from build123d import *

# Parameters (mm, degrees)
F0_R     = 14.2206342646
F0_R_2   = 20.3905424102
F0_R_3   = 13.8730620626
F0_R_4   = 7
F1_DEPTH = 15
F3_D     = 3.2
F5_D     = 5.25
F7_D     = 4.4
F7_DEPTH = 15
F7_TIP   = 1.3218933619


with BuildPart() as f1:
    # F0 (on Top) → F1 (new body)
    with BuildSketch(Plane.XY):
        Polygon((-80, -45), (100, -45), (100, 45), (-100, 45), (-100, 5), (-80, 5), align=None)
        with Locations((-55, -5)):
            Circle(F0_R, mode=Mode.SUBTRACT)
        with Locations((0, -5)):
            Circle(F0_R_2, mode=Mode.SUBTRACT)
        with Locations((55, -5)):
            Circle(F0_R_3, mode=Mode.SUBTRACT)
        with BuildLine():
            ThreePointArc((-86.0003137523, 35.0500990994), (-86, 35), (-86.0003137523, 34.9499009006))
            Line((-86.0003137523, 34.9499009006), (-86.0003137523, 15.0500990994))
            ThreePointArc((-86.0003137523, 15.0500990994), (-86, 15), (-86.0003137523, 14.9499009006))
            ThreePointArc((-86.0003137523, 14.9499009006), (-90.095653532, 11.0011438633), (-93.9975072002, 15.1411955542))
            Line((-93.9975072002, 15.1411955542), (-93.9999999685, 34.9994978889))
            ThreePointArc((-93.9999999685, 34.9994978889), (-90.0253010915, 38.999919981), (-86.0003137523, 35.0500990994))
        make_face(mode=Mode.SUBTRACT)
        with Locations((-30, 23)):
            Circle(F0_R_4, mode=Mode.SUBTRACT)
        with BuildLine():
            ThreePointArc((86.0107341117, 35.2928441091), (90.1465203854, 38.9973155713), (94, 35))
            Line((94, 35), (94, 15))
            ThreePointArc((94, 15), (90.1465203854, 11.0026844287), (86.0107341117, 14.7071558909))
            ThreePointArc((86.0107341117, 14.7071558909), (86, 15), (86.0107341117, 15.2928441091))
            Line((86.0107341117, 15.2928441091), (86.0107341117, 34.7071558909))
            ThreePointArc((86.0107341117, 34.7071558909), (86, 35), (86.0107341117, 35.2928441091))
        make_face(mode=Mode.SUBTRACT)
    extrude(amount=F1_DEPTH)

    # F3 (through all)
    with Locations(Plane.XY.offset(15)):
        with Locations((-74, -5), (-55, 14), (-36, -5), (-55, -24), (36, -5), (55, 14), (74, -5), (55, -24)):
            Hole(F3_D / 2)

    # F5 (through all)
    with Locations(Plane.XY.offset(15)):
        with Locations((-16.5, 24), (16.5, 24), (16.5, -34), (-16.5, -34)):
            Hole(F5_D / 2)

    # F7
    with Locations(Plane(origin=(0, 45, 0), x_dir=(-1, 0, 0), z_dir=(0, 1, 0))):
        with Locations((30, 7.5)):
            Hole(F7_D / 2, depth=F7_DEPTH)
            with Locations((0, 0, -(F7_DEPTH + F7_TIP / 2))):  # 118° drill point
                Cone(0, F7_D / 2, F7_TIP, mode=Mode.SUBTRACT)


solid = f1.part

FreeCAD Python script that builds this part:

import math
import FreeCAD as App
import Part
import Sketcher
from FreeCAD import Vector

doc = App.newDocument("Part")
body = doc.addObject("PartDesign::Body", "Body")

# Sketch on XY plane
sketch1 = body.newObject("Sketcher::SketchObject", "Sketch")
sketch1.AttachmentSupport = (doc.getObject("XY_Plane"), [""])
sketch1.MapMode = "FlatFace"
sketch1.addGeometry(Part.LineSegment(Vector(-80, -45, 0), Vector(100, -45, 0)), False)
sketch1.addGeometry(Part.LineSegment(Vector(100, -45, 0), Vector(100, 45, 0)), False)
sketch1.addGeometry(Part.LineSegment(Vector(100, 45, 0), Vector(-100, 45, 0)), False)
sketch1.addGeometry(Part.LineSegment(Vector(-100, 45, 0), Vector(-100, 5, 0)), False)
sketch1.addGeometry(Part.LineSegment(Vector(-100, 5, 0), Vector(-80, 5, 0)), False)
sketch1.addGeometry(Part.LineSegment(Vector(-80, 5, 0), Vector(-80, -45, 0)), False)
sketch1.addGeometry(Part.Circle(Vector(-55, -5, 0), Vector(0, 0, 1), 14.22), False)
sketch1.addGeometry(Part.Circle(Vector(0, -5, 0), Vector(0, 0, 1), 20.39), False)
sketch1.addGeometry(Part.Circle(Vector(55, -5, 0), Vector(0, 0, 1), 13.87), False)
sketch1.addGeometry(Part.ArcOfCircle(Part.Circle(Vector(-90, 35, 0), Vector(0, 0, 1), 4), math.radians(1), math.radians(180)), False)
sketch1.addGeometry(Part.ArcOfCircle(Part.Circle(Vector(-90, 35, 0), Vector(0, 0, 1), 4), math.radians(-0.72), math.radians(0.72)), False)
sketch1.addGeometry(Part.LineSegment(Vector(-86, 34.95, 0), Vector(-86, 15.05, 0)), False)
sketch1.addGeometry(Part.ArcOfCircle(Part.Circle(Vector(-90, 15, 0), Vector(0, 0, 1), 4), math.radians(-0.72), math.radians(0.72)), False)
sketch1.addGeometry(Part.ArcOfCircle(Part.Circle(Vector(-90, 15, 0), Vector(0, 0, 1), 4), math.radians(178), math.radians(359)), False)
sketch1.addGeometry(Part.LineSegment(Vector(-94, 15.14, 0), Vector(-94, 35, 0)), False)
sketch1.addGeometry(Part.Circle(Vector(-30, 23, 0), Vector(0, 0, 1), 7), False)
sketch1.addGeometry(Part.ArcOfCircle(Part.Circle(Vector(90, 35, 0), Vector(0, 0, 1), 4), math.radians(175.8), math.radians(184.2)), False)
sketch1.addGeometry(Part.ArcOfCircle(Part.Circle(Vector(90, 35, 0), Vector(0, 0, 1), 4), math.radians(0), math.radians(176)), False)
sketch1.addGeometry(Part.LineSegment(Vector(94, 35, 0), Vector(94, 15, 0)), False)
sketch1.addGeometry(Part.ArcOfCircle(Part.Circle(Vector(90, 15, 0), Vector(0, 0, 1), 4), math.radians(-176), math.radians(0)), False)
sketch1.addGeometry(Part.ArcOfCircle(Part.Circle(Vector(90, 15, 0), Vector(0, 0, 1), 4), math.radians(175.8), math.radians(184.2)), False)
sketch1.addGeometry(Part.LineSegment(Vector(86.01, 15.29, 0), Vector(86.01, 34.71, 0)), False)
sketch1.addConstraint(Sketcher.Constraint("Coincident", 0, 2, 1, 1))
sketch1.addConstraint(Sketcher.Constraint("Coincident", 1, 2, 2, 1))
sketch1.addConstraint(Sketcher.Constraint("Coincident", 2, 2, 3, 1))
sketch1.addConstraint(Sketcher.Constraint("Coincident", 3, 2, 4, 1))
sketch1.addConstraint(Sketcher.Constraint("Coincident", 4, 2, 5, 1))
sketch1.addConstraint(Sketcher.Constraint("Coincident", 5, 2, 0, 1))
sketch1.addConstraint(Sketcher.Constraint("Tangent", 9, 1, 10, 2))
sketch1.addConstraint(Sketcher.Constraint("Coincident", 10, 1, 11, 1))
sketch1.addConstraint(Sketcher.Constraint("Coincident", 11, 2, 12, 2))
sketch1.addConstraint(Sketcher.Constraint("Tangent", 12, 1, 13, 2))
sketch1.addConstraint(Sketcher.Constraint("Coincident", 13, 1, 14, 1))
sketch1.addConstraint(Sketcher.Constraint("Tangent", 14, 2, 9, 2))
sketch1.addConstraint(Sketcher.Constraint("Tangent", 16, 1, 17, 2))
sketch1.addConstraint(Sketcher.Constraint("Tangent", 17, 1, 18, 1))
sketch1.addConstraint(Sketcher.Constraint("Tangent", 18, 2, 19, 2))
sketch1.addConstraint(Sketcher.Constraint("Tangent", 19, 1, 20, 2))
sketch1.addConstraint(Sketcher.Constraint("Coincident", 20, 1, 21, 1))
sketch1.addConstraint(Sketcher.Constraint("Coincident", 21, 2, 16, 2))
sketch1.addConstraint(Sketcher.Constraint("Horizontal", 0))
sketch1.addConstraint(Sketcher.Constraint("Vertical", 1))
sketch1.addConstraint(Sketcher.Constraint("Horizontal", 2))
sketch1.addConstraint(Sketcher.Constraint("Vertical", 3))
sketch1.addConstraint(Sketcher.Constraint("Horizontal", 4))
sketch1.addConstraint(Sketcher.Constraint("Vertical", 5))
sketch1.addConstraint(Sketcher.Constraint("Vertical", 11))
sketch1.addConstraint(Sketcher.Constraint("Vertical", 18))
sketch1.addConstraint(Sketcher.Constraint("Vertical", 21))
sketch1.addConstraint(Sketcher.Constraint("Equal", 9, 10))
sketch1.addConstraint(Sketcher.Constraint("Equal", 10, 12))
sketch1.addConstraint(Sketcher.Constraint("Equal", 12, 13))
sketch1.addConstraint(Sketcher.Constraint("Equal", 13, 16))
sketch1.addConstraint(Sketcher.Constraint("Equal", 16, 17))
sketch1.addConstraint(Sketcher.Constraint("Equal", 17, 19))
sketch1.addConstraint(Sketcher.Constraint("Equal", 19, 20))
sketch1.addConstraint(Sketcher.Constraint("Symmetric", 0, 2, 2, 2, -1, 1))
sketch1.addConstraint(Sketcher.Constraint("Symmetric", 6, 3, 8, 3, -2))
sketch1.addConstraint(Sketcher.Constraint("Symmetric", 9, 3, 16, 3, -2))
sketch1.addConstraint(Sketcher.Constraint("Symmetric", 12, 3, 19, 3, -2))
sketch1.addConstraint(Sketcher.Constraint("PointOnObject", 7, 3, -2))
sketch1.addConstraint(Sketcher.Constraint("Horizontal", 6, 3, 7, 3))
sketch1.addConstraint(Sketcher.Constraint("Vertical", 9, 1, 10, 1))
sketch1.addConstraint(Sketcher.Constraint("Vertical", 11, 2, 12, 1))
sketch1.addConstraint(Sketcher.Constraint("Vertical", 16, 1, 19, 1))
sketch1.addConstraint(Sketcher.Constraint("Vertical", 19, 1, 20, 1))
sketch1.addConstraint(Sketcher.Constraint("Equal", 4, 18))
sketch1.addConstraint(Sketcher.Constraint("Diameter", 15, 14.0))
sketch1.addConstraint(Sketcher.Constraint("Radius", 9, 4.0))
sketch1.addConstraint(Sketcher.Constraint("DistanceX", 0, 1, 0, 2, 180.0))
sketch1.addConstraint(Sketcher.Constraint("DistanceX", 2, 2, 2, 1, 200.0))
sketch1.addConstraint(Sketcher.Constraint("DistanceY", 1, 1, 1, 2, 90.0))
sketch1.addConstraint(Sketcher.Constraint("DistanceY", 3, 2, 3, 1, 40.0))
sketch1.addConstraint(Sketcher.Constraint("DistanceX", 6, 3, -1, 1, 55.0))
sketch1.addConstraint(Sketcher.Constraint("DistanceY", 6, 3, -1, 1, 5.0))
sketch1.addConstraint(Sketcher.Constraint("DistanceX", 9, 3, -1, 1, 90.0))
sketch1.addConstraint(Sketcher.Constraint("DistanceY", -1, 1, 9, 3, 35.0))
sketch1.addConstraint(Sketcher.Constraint("DistanceX", 15, 3, -1, 1, 30.0))
sketch1.addConstraint(Sketcher.Constraint("DistanceY", -1, 1, 15, 3, 23.0))
sketch1.addConstraint(Sketcher.Constraint("Diameter", 6, 28.441269))
sketch1.addConstraint(Sketcher.Constraint("Diameter", 7, 40.781085))
sketch1.addConstraint(Sketcher.Constraint("Diameter", 8, 27.746124))
sketch1.addConstraint(Sketcher.Constraint("DistanceY", 11, 2, 11, 1, 19.899802))
sketch1.addConstraint(Sketcher.Constraint("DistanceY", 21, 1, 21, 2, 19.414312))
sketch1.addConstraint(Sketcher.Constraint("Distance", 14, 19.858302))
pad1 = body.newObject("PartDesign::Pad", "Pad")
pad1.Profile = sketch1
pad1.Length = 15

# Sketch on XY plane
sketch2 = body.newObject("Sketcher::SketchObject", "Sketch001")
sketch2.AttachmentSupport = (doc.getObject("XY_Plane"), [""])
sketch2.MapMode = "FlatFace"
sketch2.AttachmentOffset = App.Placement(Vector(0, 0, 15), App.Rotation())
sketch2.addGeometry(Part.Circle(Vector(-74, -5, 0), Vector(0, 0, 1), 1.6), False)
sketch2.addGeometry(Part.Circle(Vector(-55, 14, 0), Vector(0, 0, 1), 1.6), False)
sketch2.addGeometry(Part.Circle(Vector(-36, -5, 0), Vector(0, 0, 1), 1.6), False)
sketch2.addGeometry(Part.Circle(Vector(-55, -24, 0), Vector(0, 0, 1), 1.6), False)
sketch2.addGeometry(Part.Circle(Vector(36, -5, 0), Vector(0, 0, 1), 1.6), False)
sketch2.addGeometry(Part.Circle(Vector(55, 14, 0), Vector(0, 0, 1), 1.6), False)
sketch2.addGeometry(Part.Circle(Vector(74, -5, 0), Vector(0, 0, 1), 1.6), False)
sketch2.addGeometry(Part.Circle(Vector(55, -24, 0), Vector(0, 0, 1), 1.6), False)
sketch2.addConstraint(Sketcher.Constraint("Equal", 0, 1))
sketch2.addConstraint(Sketcher.Constraint("Equal", 1, 2))
sketch2.addConstraint(Sketcher.Constraint("Equal", 2, 3))
sketch2.addConstraint(Sketcher.Constraint("Equal", 3, 4))
sketch2.addConstraint(Sketcher.Constraint("Equal", 4, 5))
sketch2.addConstraint(Sketcher.Constraint("Equal", 5, 6))
sketch2.addConstraint(Sketcher.Constraint("Equal", 6, 7))
sketch2.addConstraint(Sketcher.Constraint("Symmetric", 2, 3, 4, 3, -2))
sketch2.addConstraint(Sketcher.Constraint("Symmetric", 1, 3, 5, 3, -2))
sketch2.addConstraint(Sketcher.Constraint("Symmetric", 0, 3, 6, 3, -2))
sketch2.addConstraint(Sketcher.Constraint("Symmetric", 3, 3, 7, 3, -2))
sketch2.addConstraint(Sketcher.Constraint("Horizontal", 0, 3, 2, 3))
sketch2.addConstraint(Sketcher.Constraint("Vertical", 1, 3, 3, 3))
sketch2.addConstraint(Sketcher.Constraint("Diameter", 0, 3.2))
sketch2.addConstraint(Sketcher.Constraint("DistanceX", 0, 3, -1, 1, 74.0))
sketch2.addConstraint(Sketcher.Constraint("DistanceY", 0, 3, -1, 1, 5.0))
sketch2.addConstraint(Sketcher.Constraint("DistanceX", 1, 3, -1, 1, 55.0))
sketch2.addConstraint(Sketcher.Constraint("DistanceY", -1, 1, 1, 3, 14.0))
sketch2.addConstraint(Sketcher.Constraint("DistanceX", 2, 3, -1, 1, 36.0))
sketch2.addConstraint(Sketcher.Constraint("DistanceY", 3, 3, -1, 1, 24.0))
doc.recompute()
hole = body.newObject("PartDesign::Hole", "Hole")
hole.Profile = sketch2
hole.ThreadType = "None"
hole.Diameter = 3.2
hole.DepthType = "ThroughAll"

# Sketch on XY plane
sketch3 = body.newObject("Sketcher::SketchObject", "Sketch002")
sketch3.AttachmentSupport = (doc.getObject("XY_Plane"), [""])
sketch3.MapMode = "FlatFace"
sketch3.AttachmentOffset = App.Placement(Vector(0, 0, 15), App.Rotation())
sketch3.addGeometry(Part.Circle(Vector(-16.5, 24, 0), Vector(0, 0, 1), 2.6), False)
sketch3.addGeometry(Part.Circle(Vector(16.5, 24, 0), Vector(0, 0, 1), 2.6), False)
sketch3.addGeometry(Part.Circle(Vector(16.5, -34, 0), Vector(0, 0, 1), 2.6), False)
sketch3.addGeometry(Part.Circle(Vector(-16.5, -34, 0), Vector(0, 0, 1), 2.6), False)
sketch3.addConstraint(Sketcher.Constraint("Equal", 0, 1))
sketch3.addConstraint(Sketcher.Constraint("Equal", 1, 2))
sketch3.addConstraint(Sketcher.Constraint("Equal", 2, 3))
sketch3.addConstraint(Sketcher.Constraint("Symmetric", 0, 3, 1, 3, -2))
sketch3.addConstraint(Sketcher.Constraint("Symmetric", 2, 3, 3, 3, -2))
sketch3.addConstraint(Sketcher.Constraint("Vertical", 1, 3, 2, 3))
sketch3.addConstraint(Sketcher.Constraint("Diameter", 0, 5.25))
sketch3.addConstraint(Sketcher.Constraint("DistanceY", -1, 1, 0, 3, 24.0))
sketch3.addConstraint(Sketcher.Constraint("DistanceY", 2, 3, -1, 1, 34.0))
sketch3.addConstraint(Sketcher.Constraint("DistanceX", 0, 3, 1, 3, 33.0))
doc.recompute()
hole2 = body.newObject("PartDesign::Hole", "Hole001")
hole2.Profile = sketch3
hole2.ThreadType = "None"
hole2.Diameter = 5.25
hole2.DepthType = "ThroughAll"

# Sketch on XZ plane
sketch4 = body.newObject("Sketcher::SketchObject", "Sketch003")
sketch4.AttachmentSupport = (doc.getObject("XZ_Plane"), [""])
sketch4.MapMode = "FlatFace"
sketch4.AttachmentOffset = App.Placement(Vector(0, 0, -45), App.Rotation())
sketch4.addGeometry(Part.Circle(Vector(-30, 7.5, 0), Vector(0, 0, 1), 2.2), False)
sketch4.addConstraint(Sketcher.Constraint("Diameter", 0, 4.4))
sketch4.addConstraint(Sketcher.Constraint("DistanceX", 0, 3, -1, 1, 30.0))
sketch4.addConstraint(Sketcher.Constraint("DistanceY", -1, 1, 0, 3, 7.5))
doc.recompute()
hole3 = body.newObject("PartDesign::Hole", "Hole002")
hole3.Profile = sketch4
hole3.ThreadType = "None"
hole3.Diameter = 4.4
hole3.DepthType = "Dimension"
hole3.Depth = 15
hole3.DrillPoint = "Angled"
hole3.DrillPointAngle = 118
hole3.Reversed = True

doc.recompute()
